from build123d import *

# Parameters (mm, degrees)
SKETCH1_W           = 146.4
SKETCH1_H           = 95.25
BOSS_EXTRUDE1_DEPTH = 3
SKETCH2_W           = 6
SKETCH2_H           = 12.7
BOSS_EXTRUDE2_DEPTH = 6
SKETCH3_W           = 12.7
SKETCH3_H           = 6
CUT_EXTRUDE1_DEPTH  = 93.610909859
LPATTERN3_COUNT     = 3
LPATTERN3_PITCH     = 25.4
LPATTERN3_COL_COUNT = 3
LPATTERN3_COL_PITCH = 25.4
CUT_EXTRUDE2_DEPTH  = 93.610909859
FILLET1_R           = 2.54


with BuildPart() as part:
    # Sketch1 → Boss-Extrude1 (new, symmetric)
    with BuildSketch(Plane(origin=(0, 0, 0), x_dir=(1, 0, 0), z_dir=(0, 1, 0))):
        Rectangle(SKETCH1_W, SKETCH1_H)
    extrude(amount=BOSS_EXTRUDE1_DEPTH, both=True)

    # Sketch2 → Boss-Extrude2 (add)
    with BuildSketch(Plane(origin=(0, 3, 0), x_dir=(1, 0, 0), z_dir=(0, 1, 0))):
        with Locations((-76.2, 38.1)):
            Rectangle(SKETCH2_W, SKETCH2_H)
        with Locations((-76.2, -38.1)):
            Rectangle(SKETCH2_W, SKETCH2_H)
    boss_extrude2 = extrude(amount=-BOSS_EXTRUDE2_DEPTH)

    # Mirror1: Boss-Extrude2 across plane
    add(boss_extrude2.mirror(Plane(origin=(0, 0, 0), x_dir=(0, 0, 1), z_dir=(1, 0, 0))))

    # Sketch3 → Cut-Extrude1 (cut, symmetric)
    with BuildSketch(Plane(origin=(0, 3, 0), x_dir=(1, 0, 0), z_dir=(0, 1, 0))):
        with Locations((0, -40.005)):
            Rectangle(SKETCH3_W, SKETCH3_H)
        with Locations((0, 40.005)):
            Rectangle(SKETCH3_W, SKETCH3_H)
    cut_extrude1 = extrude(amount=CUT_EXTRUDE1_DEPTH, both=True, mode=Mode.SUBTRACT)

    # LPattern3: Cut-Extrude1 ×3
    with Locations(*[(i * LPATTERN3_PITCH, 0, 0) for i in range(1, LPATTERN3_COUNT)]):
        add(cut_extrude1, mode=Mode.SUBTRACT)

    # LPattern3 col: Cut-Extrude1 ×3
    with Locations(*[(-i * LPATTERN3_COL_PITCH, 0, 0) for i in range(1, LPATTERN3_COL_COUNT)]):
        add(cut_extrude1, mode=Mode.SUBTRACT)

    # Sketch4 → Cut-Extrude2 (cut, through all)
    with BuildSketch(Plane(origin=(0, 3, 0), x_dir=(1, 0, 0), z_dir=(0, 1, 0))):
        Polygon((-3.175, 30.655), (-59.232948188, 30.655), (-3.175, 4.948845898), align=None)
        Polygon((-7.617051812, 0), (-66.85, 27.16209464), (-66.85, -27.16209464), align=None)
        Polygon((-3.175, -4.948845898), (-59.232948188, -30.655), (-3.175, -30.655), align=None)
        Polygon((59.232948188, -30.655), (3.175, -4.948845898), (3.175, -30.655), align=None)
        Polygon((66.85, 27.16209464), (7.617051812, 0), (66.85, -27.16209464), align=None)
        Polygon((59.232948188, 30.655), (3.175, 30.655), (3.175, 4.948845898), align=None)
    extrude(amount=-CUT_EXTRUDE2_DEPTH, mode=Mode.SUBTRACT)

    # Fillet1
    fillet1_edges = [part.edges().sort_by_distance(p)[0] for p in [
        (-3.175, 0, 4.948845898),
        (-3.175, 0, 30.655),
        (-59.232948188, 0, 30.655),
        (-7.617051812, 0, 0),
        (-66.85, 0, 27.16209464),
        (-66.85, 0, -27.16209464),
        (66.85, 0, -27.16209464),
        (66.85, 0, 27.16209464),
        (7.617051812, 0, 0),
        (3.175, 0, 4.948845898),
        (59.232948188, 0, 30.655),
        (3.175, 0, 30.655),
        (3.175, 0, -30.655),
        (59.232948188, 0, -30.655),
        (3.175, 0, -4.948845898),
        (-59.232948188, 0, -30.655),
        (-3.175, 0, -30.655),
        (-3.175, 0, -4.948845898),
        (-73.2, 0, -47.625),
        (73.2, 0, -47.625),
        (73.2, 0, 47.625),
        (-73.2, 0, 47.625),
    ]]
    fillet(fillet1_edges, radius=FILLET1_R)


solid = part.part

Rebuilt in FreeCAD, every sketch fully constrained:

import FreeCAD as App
import Part
import Sketcher
Q = App.Units.Quantity


def edges_at(feature, points):
    """Names of the edges that pass closest to the given points."""
    edges = feature.Shape.Edges
    near = lambda p: min(range(len(edges)), key=lambda i: edges[i].distToShape(Part.Vertex(*p))[0])
    return sorted({f"Edge{near(p) + 1}" for p in points})

doc = App.newDocument("Part")
params = doc.addObject("Spreadsheet::Sheet", "Params")
for row, (alias, value) in enumerate([
    ("sketch1_width", "146.4 mm"),
    ("sketch1_height", "95.25 mm"),
    ("pad1_length", "6 mm"),
    ("sketch2_width", "6 mm"),
    ("sketch2_height", "12.7 mm"),
    ("pad2_length", "6 mm"),
    ("sketch3_height", "6 mm"),
    ("sketch3_width", "12.7 mm"),
    ("pocket1_length", "187.22182 mm"),
    ("linearpattern_pitch", "25.4 mm"),
    ("linearpattern2_pitch", "25.4 mm"),
    ("fillet_radius", "2.54 mm"),
], start=1):
    params.set(f"A{row}", alias)
    params.set(f"B{row}", "=" + value)
    params.setAlias(f"B{row}", alias)

body = doc.addObject("PartDesign::Body", "Body")

# Sketch on XZ plane
sketch1 = body.newObject("Sketcher::SketchObject", "Sketch")
sketch1.AttachmentSupport = (doc.getObject("XZ_Plane"), [""])
sketch1.MapMode = "FlatFace"
sketch1.addGeometry(Part.LineSegment(App.Vector(-73, -48, 0), App.Vector(-73, 48, 0)), False)
sketch1.addGeometry(Part.LineSegment(App.Vector(-73, 48, 0), App.Vector(73, 48, 0)), False)
sketch1.addGeometry(Part.LineSegment(App.Vector(73, 48, 0), App.Vector(73, -48, 0)), False)
sketch1.addGeometry(Part.LineSegment(App.Vector(73, -48, 0), App.Vector(-73, -48, 0)), False)
sketch1.addConstraint(Sketcher.Constraint("Coincident", 0, 2, 1, 1))
sketch1.addConstraint(Sketcher.Constraint("Coincident", 1, 2, 2, 1))
sketch1.addConstraint(Sketcher.Constraint("Coincident", 2, 2, 3, 1))
sketch1.addConstraint(Sketcher.Constraint("Coincident", 3, 2, 0, 1))
sketch1.addConstraint(Sketcher.Constraint("Vertical", 0))
sketch1.addConstraint(Sketcher.Constraint("Horizontal", 1))
sketch1.addConstraint(Sketcher.Constraint("Vertical", 2))
sketch1.addConstraint(Sketcher.Constraint("Horizontal", 3))
sketch1.addConstraint(Sketcher.Constraint("Symmetric", 0, 2, 2, 2, -1, 1))
sketch1.addConstraint(Sketcher.Constraint("DistanceX", 1, 1, 1, 2, Q("146.4 mm")))
sketch1.addConstraint(Sketcher.Constraint("DistanceY", 0, 1, 0, 2, Q("95.25 mm")))
sketch1.setExpression("Constraints[9]", "Params.sketch1_width")
sketch1.setExpression("Constraints[10]", "Params.sketch1_height")
pad1 = body.newObject("PartDesign::Pad", "Pad")
pad1.Profile = sketch1
pad1.setExpression("Length", "Params.pad1_length")
pad1.Midplane = True

# Sketch on XZ plane
sketch2 = body.newObject("Sketcher::SketchObject", "Sketch001")
sketch2.AttachmentSupport = (doc.getObject("XZ_Plane"), [""])
sketch2.MapMode = "FlatFace"
sketch2.AttachmentOffset = App.Placement(App.Vector(0, 0, -3), App.Rotation())
sketch2.addGeometry(Part.LineSegment(App.Vector(-79, -44, 0), App.Vector(-79, -32, 0)), False)
sketch2.addGeometry(Part.LineSegment(App.Vector(-79, -32, 0), App.Vector(-73, -32, 0)), False)
sketch2.addGeometry(Part.LineSegment(App.Vector(-73, -32, 0), App.Vector(-73, -44, 0)), False)
sketch2.addGeometry(Part.LineSegment(App.Vector(-73, -44, 0), App.Vector(-79, -44, 0)), False)
sketch2.addGeometry(Part.LineSegment(App.Vector(-79, 32, 0), App.Vector(-79, 44, 0)), False)
sketch2.addGeometry(Part.LineSegment(App.Vector(-79, 44, 0), App.Vector(-73, 44, 0)), False)
sketch2.addGeometry(Part.LineSegment(App.Vector(-73, 44, 0), App.Vector(-73, 32, 0)), False)
sketch2.addGeometry(Part.LineSegment(App.Vector(-73, 32, 0), App.Vector(-79, 32, 0)), False)
sketch2.addConstraint(Sketcher.Constraint("Coincident", 0, 2, 1, 1))
sketch2.addConstraint(Sketcher.Constraint("Coincident", 1, 2, 2, 1))
sketch2.addConstraint(Sketcher.Constraint("Coincident", 2, 2, 3, 1))
sketch2.addConstraint(Sketcher.Constraint("Coincident", 3, 2, 0, 1))
sketch2.addConstraint(Sketcher.Constraint("Coincident", 4, 2, 5, 1))
sketch2.addConstraint(Sketcher.Constraint("Coincident", 5, 2, 6, 1))
sketch2.addConstraint(Sketcher.Constraint("Coincident", 6, 2, 7, 1))
sketch2.addConstraint(Sketcher.Constraint("Coincident", 7, 2, 4, 1))
sketch2.addConstraint(Sketcher.Constraint("Vertical", 0))
sketch2.addConstraint(Sketcher.Constraint("Horizontal", 1))
sketch2.addConstraint(Sketcher.Constraint("Vertical", 2))
sketch2.addConstraint(Sketcher.Constraint("Horizontal", 3))
sketch2.addConstraint(Sketcher.Constraint("Vertical", 4))
sketch2.addConstraint(Sketcher.Constraint("Horizontal", 5))
sketch2.addConstraint(Sketcher.Constraint("Vertical", 6))
sketch2.addConstraint(Sketcher.Constraint("Horizontal", 7))
sketch2.addConstraint(Sketcher.Constraint("Symmetric", 3, 2, 4, 2, -1))
sketch2.addConstraint(Sketcher.Constraint("Symmetric", 1, 2, 6, 2, -1))
sketch2.addConstraint(Sketcher.Constraint("DistanceX", 1, 1, 1, 2, Q("6 mm")))
sketch2.addConstraint(Sketcher.Constraint("DistanceY", 0, 1, 0, 2, Q("12.7 mm")))
sketch2.addConstraint(Sketcher.Constraint("DistanceX", 0, 2, -1, 1, Q("79.2 mm")))
sketch2.addConstraint(Sketcher.Constraint("DistanceY", 0, 2, 4, 2, Q("76.2 mm")))
sketch2.setExpression("Constraints[18]", "Params.sketch2_width")
sketch2.setExpression("Constraints[19]", "Params.sketch2_height")
pad2 = body.newObject("PartDesign::Pad", "Pad001")
pad2.Profile = sketch2
pad2.setExpression("Length", "Params.pad2_length")
doc.recompute()

mirrored = body.newObject("PartDesign::Mirrored", "Mirrored")
mirrored.Originals = [pad2]
mirrored.MirrorPlane = (doc.getObject("YZ_Plane"), [""])
body.Tip = mirrored

# Sketch on XZ plane
sketch3 = body.newObject("Sketcher::SketchObject", "Sketch002")
sketch3.AttachmentSupport = (doc.getObject("XZ_Plane"), [""])
sketch3.MapMode = "FlatFace"
sketch3.AttachmentOffset = App.Placement(App.Vector(0, 0, -3), App.Rotation())
sketch3.addGeometry(Part.LineSegment(App.Vector(-6, 37, 0), App.Vector(-6, 43, 0)), False)
sketch3.addGeometry(Part.LineSegment(App.Vector(-6, 43, 0), App.Vector(6, 43, 0)), False)
sketch3.addGeometry(Part.LineSegment(App.Vector(6, 43, 0), App.Vector(6, 37, 0)), False)
sketch3.addGeometry(Part.LineSegment(App.Vector(6, 37, 0), App.Vector(-6, 37, 0)), False)
sketch3.addGeometry(Part.LineSegment(App.Vector(-6, -43, 0), App.Vector(-6, -37, 0)), False)
sketch3.addGeometry(Part.LineSegment(App.Vector(-6, -37, 0), App.Vector(6, -37, 0)), False)
sketch3.addGeometry(Part.LineSegment(App.Vector(6, -37, 0), App.Vector(6, -43, 0)), False)
sketch3.addGeometry(Part.LineSegment(App.Vector(6, -43, 0), App.Vector(-6, -43, 0)), False)
sketch3.addConstraint(Sketcher.Constraint("Coincident", 0, 2, 1, 1))
sketch3.addConstraint(Sketcher.Constraint("Coincident", 1, 2, 2, 1))
sketch3.addConstraint(Sketcher.Constraint("Coincident", 2, 2, 3, 1))
sketch3.addConstraint(Sketcher.Constraint("Coincident", 3, 2, 0, 1))
sketch3.addConstraint(Sketcher.Constraint("Coincident", 4, 2, 5, 1))
sketch3.addConstraint(Sketcher.Constraint("Coincident", 5, 2, 6, 1))
sketch3.addConstraint(Sketcher.Constraint("Coincident", 6, 2, 7, 1))
sketch3.addConstraint(Sketcher.Constraint("Coincident", 7, 2, 4, 1))
sketch3.addConstraint(Sketcher.Constraint("Vertical", 0))
sketch3.addConstraint(Sketcher.Constraint("Horizontal", 1))
sketch3.addConstraint(Sketcher.Constraint("Vertical", 2))
sketch3.addConstraint(Sketcher.Constraint("Horizontal", 3))
sketch3.addConstraint(Sketcher.Constraint("Vertical", 4))
sketch3.addConstraint(Sketcher.Constraint("Horizontal", 5))
sketch3.addConstraint(Sketcher.Constraint("Vertical", 6))
sketch3.addConstraint(Sketcher.Constraint("Horizontal", 7))
sketch3.addConstraint(Sketcher.Constraint("Symmetric", 2, 2, 4, 2, -1, 1))
sketch3.addConstraint(Sketcher.Constraint("Symmetric", 0, 2, 6, 2, -1, 1))
sketch3.addConstraint(Sketcher.Constraint("Vertical", 3, 2, 4, 2))
sketch3.addConstraint(Sketcher.Constraint("DistanceY", 0, 1, 0, 2, Q("6 mm")))
sketch3.addConstraint(Sketcher.Constraint("DistanceX", 1, 1, 1, 2, Q("12.7 mm")))
sketch3.addConstraint(Sketcher.Constraint("DistanceY", 4, 2, 3, 2, Q("74.01 mm")))
sketch3.setExpression("Constraints[19]", "Params.sketch3_height")
sketch3.setExpression("Constraints[20]", "Params.sketch3_width")
pocket1 = body.newObject("PartDesign::Pocket", "Pocket")
pocket1.Profile = sketch3
pocket1.setExpression("Length", "Params.pocket1_length")
pocket1.Midplane = True
doc.recompute()

linearpattern = body.newObject("PartDesign::LinearPattern", "LinearPattern")
linearpattern.Originals = [pocket1]
linearpattern.Direction = (doc.getObject("X_Axis"), [""])
linearpattern.Mode = "offset"
linearpattern.setExpression("Offset", "Params.linearpattern_pitch")
linearpattern.Occurrences = 3
body.Tip = linearpattern
doc.recompute()

linearpattern2 = body.newObject("PartDesign::LinearPattern", "LinearPattern001")
linearpattern2.Originals = [pocket1]
linearpattern2.Direction = (doc.getObject("X_Axis"), [""])
linearpattern2.Mode = "offset"
linearpattern2.setExpression("Offset", "Params.linearpattern2_pitch")
linearpattern2.Occurrences = 3
linearpattern2.Reversed = True
body.Tip = linearpattern2

# Sketch on XZ plane
sketch4 = body.newObject("Sketcher::SketchObject", "Sketch003")
sketch4.AttachmentSupport = (doc.getObject("XZ_Plane"), [""])
sketch4.MapMode = "FlatFace"
sketch4.AttachmentOffset = App.Placement(App.Vector(0, 0, -3), App.Rotation())
sketch4.addGeometry(Part.LineSegment(App.Vector(-3, -31, 0), App.Vector(-59, -31, 0)), False)
sketch4.addGeometry(Part.LineSegment(App.Vector(-59, -31, 0), App.Vector(-3, -5, 0)), False)
sketch4.addGeometry(Part.LineSegment(App.Vector(-3, -5, 0), App.Vector(-3, -31, 0)), False)
sketch4.addGeometry(Part.LineSegment(App.Vector(-8, 0, 0), App.Vector(-67, -27, 0)), False)
sketch4.addGeometry(Part.LineSegment(App.Vector(-67, -27, 0), App.Vector(-67, 27, 0)), False)
sketch4.addGeometry(Part.LineSegment(App.Vector(-67, 27, 0), App.Vector(-8, 0, 0)), False)
sketch4.addGeometry(Part.LineSegment(App.Vector(-3, 5, 0), App.Vector(-59, 31, 0)), False)
sketch4.addGeometry(Part.LineSegment(App.Vector(-59, 31, 0), App.Vector(-3, 31, 0)), False)
sketch4.addGeometry(Part.LineSegment(App.Vector(-3, 31, 0), App.Vector(-3, 5, 0)), False)
sketch4.addGeometry(Part.LineSegment(App.Vector(59, 31, 0), App.Vector(3, 5, 0)), False)
sketch4.addGeometry(Part.LineSegment(App.Vector(3, 5, 0), App.Vector(3, 31, 0)), False)
sketch4.addGeometry(Part.LineSegment(App.Vector(3, 31, 0), App.Vector(59, 31, 0)), False)
sketch4.addGeometry(Part.LineSegment(App.Vector(67, -27, 0), App.Vector(8, 0, 0)), False)
sketch4.addGeometry(Part.LineSegment(App.Vector(8, 0, 0), App.Vector(67, 27, 0)), False)
sketch4.addGeometry(Part.LineSegment(App.Vector(67, 27, 0), App.Vector(67, -27, 0)), False)
sketch4.addGeometry(Part.LineSegment(App.Vector(59, -31, 0), App.Vector(3, -31, 0)), False)
sketch4.addGeometry(Part.LineSegment(App.Vector(3, -31, 0), App.Vector(3, -5, 0)), False)
sketch4.addGeometry(Part.LineSegment(App.Vector(3, -5, 0), App.Vector(59, -31, 0)), False)
sketch4.addConstraint(Sketcher.Constraint("Coincident", 0, 2, 1, 1))
sketch4.addConstraint(Sketcher.Constraint("Coincident", 1, 2, 2, 1))
sketch4.addConstraint(Sketcher.Constraint("Coincident", 2, 2, 0, 1))
sketch4.addConstraint(Sketcher.Constraint("Coincident", 3, 2, 4, 1))
sketch4.addConstraint(Sketcher.Constraint("Coincident", 4, 2, 5, 1))
sketch4.addConstraint(Sketcher.Constraint("Coincident", 5, 2, 3, 1))
sketch4.addConstraint(Sketcher.Constraint("Coincident", 6, 2, 7, 1))
sketch4.addConstraint(Sketcher.Constraint("Coincident", 7, 2, 8, 1))
sketch4.addConstraint(Sketcher.Constraint("Coincident", 8, 2, 6, 1))
sketch4.addConstraint(Sketcher.Constraint("Coincident", 9, 2, 10, 1))
sketch4.addConstraint(Sketcher.Constraint("Coincident", 10, 2, 11, 1))
sketch4.addConstraint(Sketcher.Constraint("Coincident", 11, 2, 9, 1))
sketch4.addConstraint(Sketcher.Constraint("Coincident", 12, 2, 13, 1))
sketch4.addConstraint(Sketcher.Constraint("Coincident", 13, 2, 14, 1))
sketch4.addConstraint(Sketcher.Constraint("Coincident", 14, 2, 12, 1))
sketch4.addConstraint(Sketcher.Constraint("Coincident", 15, 2, 16, 1))
sketch4.addConstraint(Sketcher.Constraint("Coincident", 16, 2, 17, 1))
sketch4.addConstraint(Sketcher.Constraint("Coincident", 17, 2, 15, 1))
sketch4.addConstraint(Sketcher.Constraint("Horizontal", 0))
sketch4.addConstraint(Sketcher.Constraint("Vertical", 2))
sketch4.addConstraint(Sketcher.Constraint("Vertical", 4))
sketch4.addConstraint(Sketcher.Constraint("Horizontal", 7))
sketch4.addConstraint(Sketcher.Constraint("Vertical", 8))
sketch4.addConstraint(Sketcher.Constraint("Vertical", 10))
sketch4.addConstraint(Sketcher.Constraint("Horizontal", 11))
sketch4.addConstraint(Sketcher.Constraint("Vertical", 14))
sketch4.addConstraint(Sketcher.Constraint("Horizontal", 15))
sketch4.addConstraint(Sketcher.Constraint("Vertical", 16))
sketch4.addConstraint(Sketcher.Constraint("Symmetric", 1, 2, 9, 2, -1, 1))
sketch4.addConstraint(Sketcher.Constraint("Symmetric", 0, 2, 11, 2, -1, 1))
sketch4.addConstraint(Sketcher.Constraint("Symmetric", 5, 2, 12, 2, -1, 1))
sketch4.addConstraint(Sketcher.Constraint("Symmetric", 3, 2, 13, 2, -1, 1))
sketch4.addConstraint(Sketcher.Constraint("Symmetric", 7, 2, 15, 2, -1, 1))
sketch4.addConstraint(Sketcher.Constraint("Symmetric", 8, 2, 9, 2, -2))
sketch4.addConstraint(Sketcher.Constraint("Symmetric", 6, 2, 11, 2, -2))
sketch4.addConstraint(Sketcher.Constraint("PointOnObject", 5, 2, -1))
sketch4.addConstraint(Sketcher.Constraint("Parallel", 1, 3))
sketch4.addConstraint(Sketcher.Constraint("Parallel", 5, 6))
sketch4.addConstraint(Sketcher.Constraint("Parallel", 6, 12))
sketch4.addConstraint(Sketcher.Constraint("Parallel", 12, 17))
sketch4.addConstraint(Sketcher.Constraint("Horizontal", 1, 2, 16, 2))
sketch4.addConstraint(Sketcher.Constraint("DistanceX", 3, 2, -1, 1, Q("66.85 mm")))
sketch4.addConstraint(Sketcher.Constraint("DistanceY", 0, 2, 6, 2, Q("61.31 mm")))
sketch4.addConstraint(Sketcher.Constraint("DistanceX", 8, 2, 9, 2, Q("6.35 mm")))
sketch4.addConstraint(Sketcher.Constraint("Distance", 1, Q("61.6709 mm")))
sketch4.addConstraint(Sketcher.Constraint("DistanceX", 0, 2, 0, 1, Q("56.057948 mm")))
sketch4.addConstraint(Sketcher.Constraint("DistanceY", 4, 1, 4, 2, Q("54.324189 mm")))
pocket2 = body.newObject("PartDesign::Pocket", "Pocket001")
pocket2.Profile = sketch4
pocket2.Type = "ThroughAll"
pocket2.Reversed = True
doc.recompute()

fillet = body.newObject("PartDesign::Fillet", "Fillet")
fillet.Base = (pocket2, edges_at(pocket2, [
    (-3.175, 0, 4.949),
    (-3.175, 0, 30.655),
    (-59.233, 0, 30.655),
    (-7.617, 0, 0),
    (-66.85, 0, 27.162),
    (-66.85, 0, -27.162),
    (66.85, 0, -27.162),
    (66.85, 0, 27.162),
    (7.617, 0, 0),
    (3.175, 0, 4.949),
    (59.233, 0, 30.655),
    (3.175, 0, 30.655),
    (3.175, 0, -30.655),
    (59.233, 0, -30.655),
    (3.175, 0, -4.949),
    (-59.233, 0, -30.655),
    (-3.175, 0, -30.655),
    (-3.175, 0, -4.949),
    (-73.2, 0, -47.625),
    (73.2, 0, -47.625),
    (73.2, 0, 47.625),
    (-73.2, 0, 47.625),
]))
fillet.setExpression("Radius", "Params.fillet_radius")

doc.recompute()
